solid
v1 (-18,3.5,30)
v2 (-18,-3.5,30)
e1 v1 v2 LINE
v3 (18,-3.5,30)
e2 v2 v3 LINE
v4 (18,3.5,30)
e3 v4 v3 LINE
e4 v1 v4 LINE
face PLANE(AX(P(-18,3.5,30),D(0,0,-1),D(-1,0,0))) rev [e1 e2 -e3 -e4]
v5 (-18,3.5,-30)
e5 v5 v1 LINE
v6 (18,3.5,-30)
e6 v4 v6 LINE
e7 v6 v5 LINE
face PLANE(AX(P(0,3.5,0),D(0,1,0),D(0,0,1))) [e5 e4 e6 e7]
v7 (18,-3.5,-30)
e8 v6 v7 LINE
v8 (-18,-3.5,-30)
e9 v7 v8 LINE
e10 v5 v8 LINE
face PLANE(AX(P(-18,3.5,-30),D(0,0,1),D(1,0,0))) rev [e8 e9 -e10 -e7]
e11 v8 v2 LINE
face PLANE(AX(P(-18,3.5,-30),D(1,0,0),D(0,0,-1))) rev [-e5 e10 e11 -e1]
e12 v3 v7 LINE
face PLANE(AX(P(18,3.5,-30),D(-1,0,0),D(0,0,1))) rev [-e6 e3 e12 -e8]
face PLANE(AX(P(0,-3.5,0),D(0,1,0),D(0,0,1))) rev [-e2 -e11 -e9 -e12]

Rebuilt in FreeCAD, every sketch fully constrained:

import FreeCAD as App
import Part
import Sketcher

V = App.Vector
Q = App.Units.Quantity

doc = App.newDocument("Part")
body = doc.addObject("PartDesign::Body", "Body")

sketch1 = body.newObject("Sketcher::SketchObject", "Sketch")
sketch1.AttachmentSupport = (doc.getObject("XZ_Plane"), [""])
sketch1.MapMode = "FlatFace"
sketch1.addGeometry(Part.LineSegment(V(-18, -30, 0), V(-18, 30, 0)), False)
sketch1.addGeometry(Part.LineSegment(V(-18, 30, 0), V(18, 30, 0)), False)
sketch1.addGeometry(Part.LineSegment(V(18, 30, 0), V(18, -30, 0)), False)
sketch1.addGeometry(Part.LineSegment(V(18, -30, 0), V(-18, -30, 0)), False)
sketch1.addConstraint(Sketcher.Constraint("Coincident", 0, 2, 1, 1))
sketch1.addConstraint(Sketcher.Constraint("Coincident", 1, 2, 2, 1))
sketch1.addConstraint(Sketcher.Constraint("Coincident", 2, 2, 3, 1))
sketch1.addConstraint(Sketcher.Constraint("Coincident", 3, 2, 0, 1))
sketch1.addConstraint(Sketcher.Constraint("Vertical", 0))
sketch1.addConstraint(Sketcher.Constraint("Horizontal", 1))
sketch1.addConstraint(Sketcher.Constraint("Vertical", 2))
sketch1.addConstraint(Sketcher.Constraint("Horizontal", 3))
sketch1.addConstraint(Sketcher.Constraint("Symmetric", 0, 2, 2, 2, -1, 1))
sketch1.addConstraint(Sketcher.Constraint("DistanceX", 1, 1, 1, 2, Q("36 mm")))
sketch1.addConstraint(Sketcher.Constraint("DistanceY", 0, 1, 0, 2, Q("60 mm")))
pad1 = body.newObject("PartDesign::Pad", "Pad")
pad1.Profile = sketch1
pad1.Length = 7
pad1.Midplane = True

doc.recompute()
